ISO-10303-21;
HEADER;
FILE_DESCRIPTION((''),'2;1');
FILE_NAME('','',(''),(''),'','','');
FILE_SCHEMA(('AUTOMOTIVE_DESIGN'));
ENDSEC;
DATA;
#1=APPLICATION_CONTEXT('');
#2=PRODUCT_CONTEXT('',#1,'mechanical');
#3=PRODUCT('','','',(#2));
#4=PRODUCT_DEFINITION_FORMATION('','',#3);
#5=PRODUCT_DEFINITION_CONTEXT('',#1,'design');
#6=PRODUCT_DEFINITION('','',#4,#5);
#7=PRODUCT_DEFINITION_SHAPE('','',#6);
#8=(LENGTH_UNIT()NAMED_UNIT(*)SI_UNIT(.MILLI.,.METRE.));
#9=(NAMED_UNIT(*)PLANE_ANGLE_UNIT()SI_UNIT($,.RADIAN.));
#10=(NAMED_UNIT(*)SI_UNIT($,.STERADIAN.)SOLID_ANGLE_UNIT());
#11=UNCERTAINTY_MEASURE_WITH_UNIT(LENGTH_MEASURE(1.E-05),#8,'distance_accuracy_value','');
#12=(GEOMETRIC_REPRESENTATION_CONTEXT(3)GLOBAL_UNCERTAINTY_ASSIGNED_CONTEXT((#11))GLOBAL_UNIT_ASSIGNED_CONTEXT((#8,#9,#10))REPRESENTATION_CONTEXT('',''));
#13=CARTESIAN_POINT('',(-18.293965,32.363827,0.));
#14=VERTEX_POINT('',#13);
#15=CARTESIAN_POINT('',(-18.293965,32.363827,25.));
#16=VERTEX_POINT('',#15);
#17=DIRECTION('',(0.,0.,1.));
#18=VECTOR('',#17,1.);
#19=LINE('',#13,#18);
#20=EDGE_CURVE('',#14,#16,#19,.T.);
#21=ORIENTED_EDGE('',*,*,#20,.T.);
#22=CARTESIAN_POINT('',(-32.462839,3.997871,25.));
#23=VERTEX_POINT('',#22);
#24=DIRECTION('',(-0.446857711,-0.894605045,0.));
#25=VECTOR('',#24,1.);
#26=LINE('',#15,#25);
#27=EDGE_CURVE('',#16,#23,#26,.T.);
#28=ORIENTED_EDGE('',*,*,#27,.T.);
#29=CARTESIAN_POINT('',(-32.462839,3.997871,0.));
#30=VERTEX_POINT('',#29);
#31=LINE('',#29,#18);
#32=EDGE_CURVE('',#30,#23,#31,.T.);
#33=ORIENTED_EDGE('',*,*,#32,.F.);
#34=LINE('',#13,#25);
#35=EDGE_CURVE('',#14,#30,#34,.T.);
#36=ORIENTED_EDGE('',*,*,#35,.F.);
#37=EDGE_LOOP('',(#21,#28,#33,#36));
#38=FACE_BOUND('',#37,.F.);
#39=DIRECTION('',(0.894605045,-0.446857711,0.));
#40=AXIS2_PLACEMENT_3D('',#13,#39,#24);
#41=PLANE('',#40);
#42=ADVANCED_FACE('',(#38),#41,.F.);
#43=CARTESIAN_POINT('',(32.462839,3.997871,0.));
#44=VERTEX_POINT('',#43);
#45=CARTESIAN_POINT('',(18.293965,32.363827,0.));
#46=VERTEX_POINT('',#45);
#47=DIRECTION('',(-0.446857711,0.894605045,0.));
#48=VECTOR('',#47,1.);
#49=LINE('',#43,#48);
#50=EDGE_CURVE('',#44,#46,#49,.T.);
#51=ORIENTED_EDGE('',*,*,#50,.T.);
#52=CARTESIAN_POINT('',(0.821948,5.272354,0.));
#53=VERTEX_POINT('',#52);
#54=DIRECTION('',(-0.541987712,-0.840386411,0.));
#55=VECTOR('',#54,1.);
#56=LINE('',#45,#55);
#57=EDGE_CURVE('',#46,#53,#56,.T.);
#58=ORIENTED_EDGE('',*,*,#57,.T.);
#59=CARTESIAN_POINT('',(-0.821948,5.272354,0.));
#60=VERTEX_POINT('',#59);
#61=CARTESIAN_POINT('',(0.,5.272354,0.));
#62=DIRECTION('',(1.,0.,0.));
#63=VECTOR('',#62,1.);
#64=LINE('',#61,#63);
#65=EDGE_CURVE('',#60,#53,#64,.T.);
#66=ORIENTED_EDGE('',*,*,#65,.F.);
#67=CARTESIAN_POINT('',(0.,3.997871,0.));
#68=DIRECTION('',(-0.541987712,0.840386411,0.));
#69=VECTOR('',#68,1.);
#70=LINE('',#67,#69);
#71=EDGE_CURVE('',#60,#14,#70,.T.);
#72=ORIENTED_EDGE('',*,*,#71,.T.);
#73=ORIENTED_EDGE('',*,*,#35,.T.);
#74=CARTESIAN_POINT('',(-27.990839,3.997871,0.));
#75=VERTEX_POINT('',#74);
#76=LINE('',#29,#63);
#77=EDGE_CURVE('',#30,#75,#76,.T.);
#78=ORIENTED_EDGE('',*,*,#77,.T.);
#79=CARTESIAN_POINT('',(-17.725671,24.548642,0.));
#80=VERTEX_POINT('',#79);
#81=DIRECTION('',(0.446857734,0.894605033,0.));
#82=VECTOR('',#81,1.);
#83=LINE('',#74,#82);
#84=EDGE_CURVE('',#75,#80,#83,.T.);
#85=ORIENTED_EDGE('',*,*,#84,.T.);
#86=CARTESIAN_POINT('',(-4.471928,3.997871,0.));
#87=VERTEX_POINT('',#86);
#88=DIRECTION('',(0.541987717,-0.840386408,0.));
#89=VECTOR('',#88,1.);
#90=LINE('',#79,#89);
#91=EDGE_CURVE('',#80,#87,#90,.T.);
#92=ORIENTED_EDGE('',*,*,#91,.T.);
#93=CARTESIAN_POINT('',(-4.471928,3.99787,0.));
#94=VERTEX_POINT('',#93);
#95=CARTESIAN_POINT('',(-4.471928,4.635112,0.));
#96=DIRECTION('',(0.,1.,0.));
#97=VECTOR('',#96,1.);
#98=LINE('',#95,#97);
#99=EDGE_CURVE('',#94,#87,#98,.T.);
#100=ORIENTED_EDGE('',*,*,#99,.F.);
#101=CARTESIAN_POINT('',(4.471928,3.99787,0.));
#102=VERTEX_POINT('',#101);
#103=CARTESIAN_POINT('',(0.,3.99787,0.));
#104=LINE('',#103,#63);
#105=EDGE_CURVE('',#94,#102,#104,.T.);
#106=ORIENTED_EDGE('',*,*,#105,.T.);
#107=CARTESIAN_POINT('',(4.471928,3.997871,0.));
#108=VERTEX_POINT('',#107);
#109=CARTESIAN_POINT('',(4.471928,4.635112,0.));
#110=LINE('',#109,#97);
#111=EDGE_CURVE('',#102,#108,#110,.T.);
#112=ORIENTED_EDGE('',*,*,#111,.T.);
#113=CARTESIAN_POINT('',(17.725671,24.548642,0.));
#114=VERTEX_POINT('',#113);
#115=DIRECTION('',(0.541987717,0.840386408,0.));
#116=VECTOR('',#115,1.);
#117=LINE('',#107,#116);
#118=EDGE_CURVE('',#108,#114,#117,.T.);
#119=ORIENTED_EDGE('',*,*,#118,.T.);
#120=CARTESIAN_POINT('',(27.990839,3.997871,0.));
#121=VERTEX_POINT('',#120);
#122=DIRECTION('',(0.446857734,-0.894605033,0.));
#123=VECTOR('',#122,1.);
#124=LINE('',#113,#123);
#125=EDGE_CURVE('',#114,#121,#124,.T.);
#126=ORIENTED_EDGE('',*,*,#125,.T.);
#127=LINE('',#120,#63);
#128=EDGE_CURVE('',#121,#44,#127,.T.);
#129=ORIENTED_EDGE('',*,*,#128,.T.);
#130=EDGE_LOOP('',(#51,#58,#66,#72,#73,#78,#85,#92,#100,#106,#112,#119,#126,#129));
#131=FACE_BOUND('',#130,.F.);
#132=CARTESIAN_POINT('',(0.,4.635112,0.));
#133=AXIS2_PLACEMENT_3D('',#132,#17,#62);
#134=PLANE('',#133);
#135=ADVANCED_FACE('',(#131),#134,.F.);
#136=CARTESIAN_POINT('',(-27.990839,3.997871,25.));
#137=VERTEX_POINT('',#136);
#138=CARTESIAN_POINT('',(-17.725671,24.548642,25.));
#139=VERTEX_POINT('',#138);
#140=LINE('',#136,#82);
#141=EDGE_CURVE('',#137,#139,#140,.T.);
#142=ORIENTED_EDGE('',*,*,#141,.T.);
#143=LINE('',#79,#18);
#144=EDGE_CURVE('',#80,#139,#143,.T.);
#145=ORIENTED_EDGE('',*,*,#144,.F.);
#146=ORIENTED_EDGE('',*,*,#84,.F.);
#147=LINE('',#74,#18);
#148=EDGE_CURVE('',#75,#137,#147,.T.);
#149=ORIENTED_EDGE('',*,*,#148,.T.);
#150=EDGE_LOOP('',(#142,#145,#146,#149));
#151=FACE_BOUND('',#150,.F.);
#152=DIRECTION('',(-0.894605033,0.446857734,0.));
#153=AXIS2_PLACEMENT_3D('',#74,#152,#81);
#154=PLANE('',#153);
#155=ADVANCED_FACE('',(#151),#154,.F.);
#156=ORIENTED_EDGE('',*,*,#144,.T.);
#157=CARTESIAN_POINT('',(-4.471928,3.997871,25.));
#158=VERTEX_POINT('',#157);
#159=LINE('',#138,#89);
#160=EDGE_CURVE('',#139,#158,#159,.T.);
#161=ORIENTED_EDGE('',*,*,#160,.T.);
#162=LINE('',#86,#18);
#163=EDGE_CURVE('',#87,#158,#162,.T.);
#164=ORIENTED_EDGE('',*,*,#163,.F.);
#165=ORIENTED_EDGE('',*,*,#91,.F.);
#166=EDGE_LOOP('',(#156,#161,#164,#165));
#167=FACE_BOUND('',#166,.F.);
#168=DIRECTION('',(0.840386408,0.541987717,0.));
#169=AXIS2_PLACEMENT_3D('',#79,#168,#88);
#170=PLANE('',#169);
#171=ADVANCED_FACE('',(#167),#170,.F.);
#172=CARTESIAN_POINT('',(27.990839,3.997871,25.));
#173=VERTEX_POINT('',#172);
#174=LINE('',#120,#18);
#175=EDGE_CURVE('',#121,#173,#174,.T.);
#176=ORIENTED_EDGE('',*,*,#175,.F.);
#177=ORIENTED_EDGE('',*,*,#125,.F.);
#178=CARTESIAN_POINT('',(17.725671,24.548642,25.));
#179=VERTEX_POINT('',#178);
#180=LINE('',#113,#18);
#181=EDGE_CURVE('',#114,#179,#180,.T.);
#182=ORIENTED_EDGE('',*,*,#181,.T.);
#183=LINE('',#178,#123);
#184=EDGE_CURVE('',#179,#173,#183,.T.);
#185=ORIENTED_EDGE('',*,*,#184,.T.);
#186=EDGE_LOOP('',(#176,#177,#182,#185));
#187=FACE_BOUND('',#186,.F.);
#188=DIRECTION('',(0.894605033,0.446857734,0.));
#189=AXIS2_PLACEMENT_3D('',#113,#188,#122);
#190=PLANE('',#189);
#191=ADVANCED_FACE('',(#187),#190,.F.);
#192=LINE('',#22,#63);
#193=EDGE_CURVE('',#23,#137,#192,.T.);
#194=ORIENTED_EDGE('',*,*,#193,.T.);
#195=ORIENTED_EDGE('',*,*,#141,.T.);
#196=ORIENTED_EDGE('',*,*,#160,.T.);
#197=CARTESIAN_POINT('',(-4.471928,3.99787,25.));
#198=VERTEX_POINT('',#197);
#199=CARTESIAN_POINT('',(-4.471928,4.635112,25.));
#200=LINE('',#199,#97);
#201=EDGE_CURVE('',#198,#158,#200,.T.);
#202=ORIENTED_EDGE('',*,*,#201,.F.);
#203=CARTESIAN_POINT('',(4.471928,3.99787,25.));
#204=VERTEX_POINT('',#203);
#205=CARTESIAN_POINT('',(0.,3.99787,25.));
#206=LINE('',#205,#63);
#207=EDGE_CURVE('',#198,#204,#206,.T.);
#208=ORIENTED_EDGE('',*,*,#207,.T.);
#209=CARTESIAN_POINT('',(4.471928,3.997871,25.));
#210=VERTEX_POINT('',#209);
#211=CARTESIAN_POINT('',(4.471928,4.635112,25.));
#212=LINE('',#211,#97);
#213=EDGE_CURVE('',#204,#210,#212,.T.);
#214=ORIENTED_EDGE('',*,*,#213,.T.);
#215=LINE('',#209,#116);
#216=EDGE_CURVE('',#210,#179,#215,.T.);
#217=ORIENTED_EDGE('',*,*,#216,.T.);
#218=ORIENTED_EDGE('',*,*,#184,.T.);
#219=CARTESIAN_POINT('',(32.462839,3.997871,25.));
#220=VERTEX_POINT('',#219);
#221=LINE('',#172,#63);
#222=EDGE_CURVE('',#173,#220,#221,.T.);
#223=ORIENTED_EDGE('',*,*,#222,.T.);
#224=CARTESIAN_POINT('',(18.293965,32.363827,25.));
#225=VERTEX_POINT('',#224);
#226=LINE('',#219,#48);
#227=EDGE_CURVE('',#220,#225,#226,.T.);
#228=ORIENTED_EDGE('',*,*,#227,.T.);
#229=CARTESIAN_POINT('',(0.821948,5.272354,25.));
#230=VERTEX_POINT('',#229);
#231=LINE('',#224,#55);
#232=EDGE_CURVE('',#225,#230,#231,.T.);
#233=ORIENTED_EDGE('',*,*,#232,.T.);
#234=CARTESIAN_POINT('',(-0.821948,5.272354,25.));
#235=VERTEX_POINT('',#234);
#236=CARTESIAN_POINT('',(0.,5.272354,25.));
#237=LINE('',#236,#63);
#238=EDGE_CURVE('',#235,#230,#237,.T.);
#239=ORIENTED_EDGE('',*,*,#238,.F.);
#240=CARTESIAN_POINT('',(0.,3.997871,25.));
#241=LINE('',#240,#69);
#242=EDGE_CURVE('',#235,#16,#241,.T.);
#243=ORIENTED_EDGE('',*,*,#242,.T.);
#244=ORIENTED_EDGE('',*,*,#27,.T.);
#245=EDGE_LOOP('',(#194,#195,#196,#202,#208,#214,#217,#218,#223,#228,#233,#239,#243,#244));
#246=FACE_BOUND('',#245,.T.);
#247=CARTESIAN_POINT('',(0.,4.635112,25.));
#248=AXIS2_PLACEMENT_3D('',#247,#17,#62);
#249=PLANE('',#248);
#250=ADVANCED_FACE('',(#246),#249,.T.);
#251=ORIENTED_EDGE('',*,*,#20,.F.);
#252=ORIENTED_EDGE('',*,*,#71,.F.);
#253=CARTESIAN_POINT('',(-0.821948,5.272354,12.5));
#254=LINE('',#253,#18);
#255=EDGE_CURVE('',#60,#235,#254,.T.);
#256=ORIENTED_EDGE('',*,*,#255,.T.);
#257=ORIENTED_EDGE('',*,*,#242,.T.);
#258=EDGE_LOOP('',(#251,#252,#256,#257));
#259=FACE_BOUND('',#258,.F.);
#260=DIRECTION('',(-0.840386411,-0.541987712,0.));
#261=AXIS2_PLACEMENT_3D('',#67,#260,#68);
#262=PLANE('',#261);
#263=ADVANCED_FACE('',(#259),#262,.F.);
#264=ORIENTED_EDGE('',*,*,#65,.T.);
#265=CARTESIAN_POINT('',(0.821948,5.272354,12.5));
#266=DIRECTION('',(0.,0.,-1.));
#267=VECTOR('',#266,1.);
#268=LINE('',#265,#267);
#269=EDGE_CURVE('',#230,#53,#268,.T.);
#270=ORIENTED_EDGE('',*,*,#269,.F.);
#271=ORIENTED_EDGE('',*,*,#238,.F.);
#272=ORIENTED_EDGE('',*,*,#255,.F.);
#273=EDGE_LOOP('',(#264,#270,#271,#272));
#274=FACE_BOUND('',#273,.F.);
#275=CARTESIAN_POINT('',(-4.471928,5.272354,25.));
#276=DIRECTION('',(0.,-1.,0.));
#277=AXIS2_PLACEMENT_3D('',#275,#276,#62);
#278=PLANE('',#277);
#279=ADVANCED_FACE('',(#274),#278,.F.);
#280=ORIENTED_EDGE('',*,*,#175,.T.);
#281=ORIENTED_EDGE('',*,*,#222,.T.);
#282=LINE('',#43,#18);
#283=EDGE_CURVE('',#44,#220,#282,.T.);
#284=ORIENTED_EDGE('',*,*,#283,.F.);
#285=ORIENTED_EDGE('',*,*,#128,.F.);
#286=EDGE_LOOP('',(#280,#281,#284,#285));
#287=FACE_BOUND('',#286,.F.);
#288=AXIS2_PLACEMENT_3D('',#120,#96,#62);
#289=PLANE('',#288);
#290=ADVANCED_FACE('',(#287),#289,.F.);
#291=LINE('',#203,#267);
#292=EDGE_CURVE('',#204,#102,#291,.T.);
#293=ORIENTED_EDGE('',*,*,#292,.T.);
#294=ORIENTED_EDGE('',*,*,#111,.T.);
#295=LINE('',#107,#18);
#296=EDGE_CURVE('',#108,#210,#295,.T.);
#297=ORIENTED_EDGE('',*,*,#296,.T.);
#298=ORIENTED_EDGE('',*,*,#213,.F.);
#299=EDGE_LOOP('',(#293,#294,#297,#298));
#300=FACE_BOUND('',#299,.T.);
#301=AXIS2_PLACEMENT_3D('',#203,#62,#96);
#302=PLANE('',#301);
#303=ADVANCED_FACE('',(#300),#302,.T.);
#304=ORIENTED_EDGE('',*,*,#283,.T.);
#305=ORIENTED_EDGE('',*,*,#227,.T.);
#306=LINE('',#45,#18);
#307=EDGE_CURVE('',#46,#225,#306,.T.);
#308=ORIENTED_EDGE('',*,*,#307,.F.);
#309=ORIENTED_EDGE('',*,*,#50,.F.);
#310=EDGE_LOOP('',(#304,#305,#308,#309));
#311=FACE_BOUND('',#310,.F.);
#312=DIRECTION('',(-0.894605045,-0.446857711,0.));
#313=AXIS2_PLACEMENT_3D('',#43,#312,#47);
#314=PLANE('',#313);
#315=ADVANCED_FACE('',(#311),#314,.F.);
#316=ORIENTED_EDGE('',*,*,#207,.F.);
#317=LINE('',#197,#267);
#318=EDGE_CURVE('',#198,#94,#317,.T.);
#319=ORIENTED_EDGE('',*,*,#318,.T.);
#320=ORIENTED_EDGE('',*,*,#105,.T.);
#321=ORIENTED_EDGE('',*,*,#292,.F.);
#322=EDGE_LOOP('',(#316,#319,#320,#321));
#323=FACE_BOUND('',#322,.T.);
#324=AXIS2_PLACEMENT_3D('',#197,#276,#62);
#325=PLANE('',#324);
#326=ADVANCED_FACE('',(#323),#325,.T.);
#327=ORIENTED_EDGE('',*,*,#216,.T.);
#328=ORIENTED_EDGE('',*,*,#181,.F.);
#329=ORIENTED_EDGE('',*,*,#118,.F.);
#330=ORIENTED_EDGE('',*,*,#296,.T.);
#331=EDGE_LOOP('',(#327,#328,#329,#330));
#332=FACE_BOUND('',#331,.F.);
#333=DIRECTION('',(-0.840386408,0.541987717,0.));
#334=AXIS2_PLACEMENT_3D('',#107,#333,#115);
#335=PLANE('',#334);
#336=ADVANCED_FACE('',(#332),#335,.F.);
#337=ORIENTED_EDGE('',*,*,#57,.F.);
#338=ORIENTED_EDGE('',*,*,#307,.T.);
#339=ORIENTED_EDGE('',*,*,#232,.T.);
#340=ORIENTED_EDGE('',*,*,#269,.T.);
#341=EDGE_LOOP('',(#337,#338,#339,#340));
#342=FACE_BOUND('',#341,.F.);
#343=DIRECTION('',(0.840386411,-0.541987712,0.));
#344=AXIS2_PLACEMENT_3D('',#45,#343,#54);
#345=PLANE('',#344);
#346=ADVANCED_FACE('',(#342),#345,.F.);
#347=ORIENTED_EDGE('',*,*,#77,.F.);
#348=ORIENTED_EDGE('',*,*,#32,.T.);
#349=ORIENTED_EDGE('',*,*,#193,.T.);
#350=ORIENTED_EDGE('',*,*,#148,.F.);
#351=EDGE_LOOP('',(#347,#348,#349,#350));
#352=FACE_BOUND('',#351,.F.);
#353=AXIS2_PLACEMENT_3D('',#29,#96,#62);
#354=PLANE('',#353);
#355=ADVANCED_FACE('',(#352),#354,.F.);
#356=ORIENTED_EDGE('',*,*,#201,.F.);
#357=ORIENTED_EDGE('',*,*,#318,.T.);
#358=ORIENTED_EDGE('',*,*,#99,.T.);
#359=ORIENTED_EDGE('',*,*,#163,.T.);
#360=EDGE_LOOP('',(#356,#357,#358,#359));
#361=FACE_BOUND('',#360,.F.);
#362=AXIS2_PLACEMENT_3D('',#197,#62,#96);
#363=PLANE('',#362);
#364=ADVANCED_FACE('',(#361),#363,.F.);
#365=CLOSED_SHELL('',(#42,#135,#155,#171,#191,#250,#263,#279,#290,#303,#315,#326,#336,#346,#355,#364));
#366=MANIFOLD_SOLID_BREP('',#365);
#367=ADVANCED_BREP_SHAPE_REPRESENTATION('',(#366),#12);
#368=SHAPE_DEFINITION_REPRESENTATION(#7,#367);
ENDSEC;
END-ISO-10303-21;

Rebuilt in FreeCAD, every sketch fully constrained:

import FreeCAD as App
import Part
import Sketcher


def add_polygon(sketch, points):
    """Adds a closed chain of lines whose ends are joined by coincident constraints."""
    first, n = sketch.GeometryCount, len(points)
    for a, b in zip(points, points[1:] + points[:1]):
        sketch.addGeometry(Part.LineSegment(App.Vector(*a, 0), App.Vector(*b, 0)), False)
    for i in range(n):
        sketch.addConstraint(Sketcher.Constraint("Coincident", first + i, 2, first + (i + 1) % n, 1))

doc = App.newDocument("Part")
body = doc.addObject("PartDesign::Body", "Body")
body.AllowCompound = True

sketch1 = body.newObject("Sketcher::SketchObject", "Sketch")
sketch1.AttachmentSupport = (doc.getObject("XY_Plane"), [""])
sketch1.MapMode = "FlatFace"
add_polygon(sketch1, [(-4.5, 4), (0, 4), (-18.3, 32.4), (-32.5, 4), (-28, 4), (-17.7, 24.5)])
add_polygon(sketch1, [(18.3, 32.4), (0, 4), (4.5, 4), (17.7, 24.5), (28, 4), (32.5, 4)])
sketch1.addConstraint(Sketcher.Constraint("Horizontal", 0))
sketch1.addConstraint(Sketcher.Constraint("Horizontal", 3))
sketch1.addConstraint(Sketcher.Constraint("Horizontal", 7))
sketch1.addConstraint(Sketcher.Constraint("Horizontal", 10))
sketch1.addConstraint(Sketcher.Constraint("Coincident", 6, 2, 0, 2))
sketch1.addConstraint(Sketcher.Constraint("Symmetric", 4, 2, 8, 2, -2))
sketch1.addConstraint(Sketcher.Constraint("Symmetric", 3, 2, 9, 2, -2))
sketch1.addConstraint(Sketcher.Constraint("Symmetric", 1, 2, 11, 2, -2))
sketch1.addConstraint(Sketcher.Constraint("PointOnObject", 0, 2, -2))
sketch1.addConstraint(Sketcher.Constraint("Parallel", 2, 4))
sketch1.addConstraint(Sketcher.Constraint("Parallel", 1, 5))
sketch1.addConstraint(Sketcher.Constraint("Parallel", 6, 8))
sketch1.addConstraint(Sketcher.Constraint("Parallel", 9, 11))
sketch1.addConstraint(Sketcher.Constraint("Horizontal", 0, 2, 2, 2))
sketch1.addConstraint(Sketcher.Constraint("DistanceX", 3, 1, 3, 2, 4.472))
sketch1.addConstraint(Sketcher.Constraint("DistanceX", 4, 2, 7, 2, 22.197599))
sketch1.addConstraint(Sketcher.Constraint("Distance", 1, 33.753468))
sketch1.addConstraint(Sketcher.Constraint("DistanceX", 0, 1, 0, 2, 4.471928))
sketch1.addConstraint(Sketcher.Constraint("DistanceY", -1, 1, 0, 2, 3.997871))
sketch1.addConstraint(Sketcher.Constraint("DistanceX", 2, 2, -1, 1, 32.462839))
pad1 = body.newObject("PartDesign::Pad", "Pad")
pad1.Profile = sketch1
pad1.Length = 25

sketch2 = body.newObject("Sketcher::SketchObject", "Sketch001")
sketch2.AttachmentSupport = (doc.getObject("XY_Plane"), [""])
sketch2.MapMode = "FlatFace"
sketch2.AttachmentOffset = App.Placement(App.Vector(0, 0, 25), App.Rotation())
add_polygon(sketch2, [(-4.5, 5.3), (-4.5, 4), (4.5, 4), (4.5, 5.3)])
sketch2.addConstraint(Sketcher.Constraint("Vertical", 0))
sketch2.addConstraint(Sketcher.Constraint("Horizontal", 1))
sketch2.addConstraint(Sketcher.Constraint("Vertical", 2))
sketch2.addConstraint(Sketcher.Constraint("Horizontal", 3))
sketch2.addConstraint(Sketcher.Constraint("DistanceX", 1, 1, 1, 2, 8.943856))
sketch2.addConstraint(Sketcher.Constraint("DistanceY", 0, 2, 0, 1, 1.274483))
sketch2.addConstraint(Sketcher.Constraint("DistanceY", -1, 1, 0, 2, 3.99787))
sketch2.addConstraint(Sketcher.Constraint("DistanceX", 0, 2, -1, 1, 4.471928))
pad2 = body.newObject("PartDesign::Pad", "Pad001")
pad2.Profile = sketch2
pad2.Length = 25
pad2.Reversed = True

doc.recompute()
